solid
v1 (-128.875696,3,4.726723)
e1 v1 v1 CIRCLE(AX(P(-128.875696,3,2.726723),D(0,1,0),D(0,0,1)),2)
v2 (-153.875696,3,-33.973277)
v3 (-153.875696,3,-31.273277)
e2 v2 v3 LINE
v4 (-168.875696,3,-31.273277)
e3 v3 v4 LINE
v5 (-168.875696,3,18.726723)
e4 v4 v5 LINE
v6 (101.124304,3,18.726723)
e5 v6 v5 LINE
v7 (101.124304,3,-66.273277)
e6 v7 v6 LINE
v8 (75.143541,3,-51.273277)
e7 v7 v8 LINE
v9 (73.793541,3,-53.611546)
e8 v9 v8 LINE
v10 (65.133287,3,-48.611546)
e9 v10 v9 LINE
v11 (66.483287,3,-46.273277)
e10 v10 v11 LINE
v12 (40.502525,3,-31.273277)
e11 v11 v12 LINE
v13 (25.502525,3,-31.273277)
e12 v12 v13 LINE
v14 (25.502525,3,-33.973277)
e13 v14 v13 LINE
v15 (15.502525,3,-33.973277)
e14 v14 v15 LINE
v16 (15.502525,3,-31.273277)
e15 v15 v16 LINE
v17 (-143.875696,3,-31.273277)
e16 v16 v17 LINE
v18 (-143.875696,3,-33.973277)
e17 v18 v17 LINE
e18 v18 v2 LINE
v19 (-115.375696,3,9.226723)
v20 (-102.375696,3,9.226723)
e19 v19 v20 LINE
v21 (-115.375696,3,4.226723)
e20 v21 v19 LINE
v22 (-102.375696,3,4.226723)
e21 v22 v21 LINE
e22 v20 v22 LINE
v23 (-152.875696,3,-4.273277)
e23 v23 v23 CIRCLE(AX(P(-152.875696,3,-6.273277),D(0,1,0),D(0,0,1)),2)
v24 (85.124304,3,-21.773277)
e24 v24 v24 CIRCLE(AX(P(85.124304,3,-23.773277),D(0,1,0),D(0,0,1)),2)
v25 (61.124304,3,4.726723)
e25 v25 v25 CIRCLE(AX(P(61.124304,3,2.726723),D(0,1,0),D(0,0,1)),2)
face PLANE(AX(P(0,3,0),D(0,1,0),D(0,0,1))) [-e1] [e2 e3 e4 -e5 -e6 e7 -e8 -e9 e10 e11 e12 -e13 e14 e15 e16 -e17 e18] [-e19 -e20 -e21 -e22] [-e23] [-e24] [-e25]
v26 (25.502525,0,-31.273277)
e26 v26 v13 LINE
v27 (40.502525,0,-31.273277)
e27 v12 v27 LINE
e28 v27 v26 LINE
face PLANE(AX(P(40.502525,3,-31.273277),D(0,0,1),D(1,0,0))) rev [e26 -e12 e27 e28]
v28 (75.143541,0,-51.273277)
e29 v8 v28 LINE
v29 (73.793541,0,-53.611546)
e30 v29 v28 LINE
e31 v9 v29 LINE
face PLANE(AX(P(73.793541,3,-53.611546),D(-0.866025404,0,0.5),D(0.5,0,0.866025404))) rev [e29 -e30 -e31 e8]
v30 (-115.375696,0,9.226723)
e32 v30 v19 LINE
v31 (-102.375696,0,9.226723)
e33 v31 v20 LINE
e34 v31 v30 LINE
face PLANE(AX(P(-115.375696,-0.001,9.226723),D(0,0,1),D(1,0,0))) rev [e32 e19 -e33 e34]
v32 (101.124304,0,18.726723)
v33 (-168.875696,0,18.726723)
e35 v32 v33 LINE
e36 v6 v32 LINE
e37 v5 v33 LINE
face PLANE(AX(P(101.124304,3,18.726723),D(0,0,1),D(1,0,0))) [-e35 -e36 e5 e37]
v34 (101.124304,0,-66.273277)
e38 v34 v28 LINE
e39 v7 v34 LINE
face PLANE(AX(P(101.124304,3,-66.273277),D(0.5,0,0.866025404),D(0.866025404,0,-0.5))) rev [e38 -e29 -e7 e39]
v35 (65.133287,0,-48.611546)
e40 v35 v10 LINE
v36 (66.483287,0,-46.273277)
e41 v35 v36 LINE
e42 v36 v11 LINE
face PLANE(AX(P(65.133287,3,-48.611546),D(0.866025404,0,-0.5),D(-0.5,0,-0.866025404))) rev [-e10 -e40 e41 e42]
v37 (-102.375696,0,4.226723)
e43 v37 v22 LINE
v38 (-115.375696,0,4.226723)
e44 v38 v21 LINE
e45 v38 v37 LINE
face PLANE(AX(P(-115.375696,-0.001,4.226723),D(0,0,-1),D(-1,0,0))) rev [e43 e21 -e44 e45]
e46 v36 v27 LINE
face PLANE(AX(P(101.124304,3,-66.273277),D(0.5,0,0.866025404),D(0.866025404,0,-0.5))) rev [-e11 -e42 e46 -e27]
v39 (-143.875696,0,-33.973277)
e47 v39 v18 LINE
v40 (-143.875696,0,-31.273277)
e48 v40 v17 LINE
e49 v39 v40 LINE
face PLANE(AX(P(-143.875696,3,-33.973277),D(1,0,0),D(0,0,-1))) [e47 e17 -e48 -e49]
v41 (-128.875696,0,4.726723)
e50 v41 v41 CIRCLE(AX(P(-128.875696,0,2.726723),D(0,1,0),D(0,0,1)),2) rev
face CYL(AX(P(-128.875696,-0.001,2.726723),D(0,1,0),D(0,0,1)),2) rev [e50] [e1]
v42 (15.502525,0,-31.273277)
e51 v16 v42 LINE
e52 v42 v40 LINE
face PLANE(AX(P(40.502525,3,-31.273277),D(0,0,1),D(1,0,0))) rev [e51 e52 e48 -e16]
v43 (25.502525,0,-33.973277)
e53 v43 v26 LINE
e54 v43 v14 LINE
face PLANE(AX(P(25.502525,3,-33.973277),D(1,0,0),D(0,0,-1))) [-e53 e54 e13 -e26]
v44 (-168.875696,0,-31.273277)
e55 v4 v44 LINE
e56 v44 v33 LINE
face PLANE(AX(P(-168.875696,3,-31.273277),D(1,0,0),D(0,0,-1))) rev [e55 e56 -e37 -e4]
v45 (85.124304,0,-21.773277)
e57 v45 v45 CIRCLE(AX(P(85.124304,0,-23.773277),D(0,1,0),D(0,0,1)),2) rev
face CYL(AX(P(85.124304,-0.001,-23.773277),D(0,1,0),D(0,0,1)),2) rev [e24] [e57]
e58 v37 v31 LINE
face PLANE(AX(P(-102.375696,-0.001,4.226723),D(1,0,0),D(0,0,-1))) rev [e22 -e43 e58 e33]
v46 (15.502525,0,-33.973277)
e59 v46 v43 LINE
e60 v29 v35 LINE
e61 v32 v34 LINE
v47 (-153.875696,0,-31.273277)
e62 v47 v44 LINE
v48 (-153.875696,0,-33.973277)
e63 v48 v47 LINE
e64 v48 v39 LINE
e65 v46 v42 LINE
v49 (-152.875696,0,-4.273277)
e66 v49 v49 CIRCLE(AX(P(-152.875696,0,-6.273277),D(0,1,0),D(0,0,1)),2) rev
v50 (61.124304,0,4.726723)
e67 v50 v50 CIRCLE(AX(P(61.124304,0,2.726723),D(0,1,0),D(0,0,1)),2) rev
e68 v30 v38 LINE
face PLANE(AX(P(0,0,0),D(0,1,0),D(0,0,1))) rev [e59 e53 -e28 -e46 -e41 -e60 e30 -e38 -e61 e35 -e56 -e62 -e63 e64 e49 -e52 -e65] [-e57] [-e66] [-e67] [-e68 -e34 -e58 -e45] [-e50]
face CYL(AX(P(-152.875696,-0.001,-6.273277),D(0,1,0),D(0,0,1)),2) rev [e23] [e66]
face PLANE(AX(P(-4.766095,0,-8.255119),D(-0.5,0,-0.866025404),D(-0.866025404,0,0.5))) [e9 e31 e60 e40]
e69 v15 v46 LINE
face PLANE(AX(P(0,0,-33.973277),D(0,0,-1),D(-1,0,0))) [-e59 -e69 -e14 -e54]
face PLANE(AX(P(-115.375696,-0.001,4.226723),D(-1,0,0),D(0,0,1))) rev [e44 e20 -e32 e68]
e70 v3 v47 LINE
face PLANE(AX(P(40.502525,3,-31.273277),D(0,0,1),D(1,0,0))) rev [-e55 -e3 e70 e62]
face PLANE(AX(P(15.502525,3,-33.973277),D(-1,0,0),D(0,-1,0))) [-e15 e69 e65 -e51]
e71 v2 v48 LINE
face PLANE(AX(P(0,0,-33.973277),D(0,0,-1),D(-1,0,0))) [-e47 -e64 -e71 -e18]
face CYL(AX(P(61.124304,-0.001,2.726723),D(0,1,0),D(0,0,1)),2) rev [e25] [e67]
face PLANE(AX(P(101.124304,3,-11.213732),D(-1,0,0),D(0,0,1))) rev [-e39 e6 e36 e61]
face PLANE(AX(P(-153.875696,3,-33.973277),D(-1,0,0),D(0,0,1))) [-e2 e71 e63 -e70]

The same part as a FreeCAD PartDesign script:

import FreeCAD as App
import Part
import Sketcher
from FreeCAD import Vector
Q = App.Units.Quantity

doc = App.newDocument("Part")
params = doc.addObject("Spreadsheet::Sheet", "Params")
for row, (alias, value) in enumerate([
    ("sketch1_width", "270 mm"),
    ("sketch1_height", "50 mm"),
    ("sketch1_height2", "85 mm"),
    ("pad1_length", "3 mm"),
    ("sketch2_diameter", "4 mm"),
    ("sketch3_diameter", "4 mm"),
    ("sketch4_diameter", "4 mm"),
    ("sketch5_diameter", "4 mm"),
    ("sketch6_width", "10 mm"),
    ("sketch6_height", "3 mm"),
    ("pad2_length", "2.7 mm"),
    ("sketch7_width", "10 mm"),
    ("sketch7_height", "3 mm"),
    ("pad3_length", "2.7 mm"),
    ("sketch8_width", "13 mm"),
    ("sketch8_height", "5 mm"),
], start=1):
    params.set(f"A{row}", alias)
    params.set(f"B{row}", "=" + value)
    params.setAlias(f"B{row}", alias)

body = doc.addObject("PartDesign::Body", "Body")

# Sketch on XZ plane
sketch1 = body.newObject("Sketcher::SketchObject", "Sketch")
sketch1.AttachmentSupport = (doc.getObject("XZ_Plane"), [""])
sketch1.MapMode = "FlatFace"
sketch1.addGeometry(Part.LineSegment(Vector(101.124304, -66.273277, 0), Vector(40.502525, -31.273277, 0)), False)
sketch1.addGeometry(Part.LineSegment(Vector(40.502525, -31.273277, 0), Vector(-168.875696, -31.273277, 0)), False)
sketch1.addGeometry(Part.LineSegment(Vector(-168.875696, -31.273277, 0), Vector(-168.875696, 18.726723, 0)), False)
sketch1.addGeometry(Part.LineSegment(Vector(-168.875696, 18.726723, 0), Vector(101.124304, 18.726723, 0)), False)
sketch1.addGeometry(Part.LineSegment(Vector(101.124304, 18.726723, 0), Vector(101.124304, -66.273277, 0)), False)
sketch1.addConstraint(Sketcher.Constraint("Coincident", 0, 2, 1, 1))
sketch1.addConstraint(Sketcher.Constraint("Coincident", 1, 2, 2, 1))
sketch1.addConstraint(Sketcher.Constraint("Coincident", 2, 2, 3, 1))
sketch1.addConstraint(Sketcher.Constraint("Coincident", 3, 2, 4, 1))
sketch1.addConstraint(Sketcher.Constraint("Coincident", 4, 2, 0, 1))
sketch1.addConstraint(Sketcher.Constraint("Horizontal", 1))
sketch1.addConstraint(Sketcher.Constraint("Vertical", 2))
sketch1.addConstraint(Sketcher.Constraint("Horizontal", 3))
sketch1.addConstraint(Sketcher.Constraint("Vertical", 4))
sketch1.addConstraint(Sketcher.Constraint("DistanceX", 3, 1, 3, 2, 270.0))
sketch1.addConstraint(Sketcher.Constraint("DistanceY", 2, 1, 2, 2, 50.0))
sketch1.addConstraint(Sketcher.Constraint("DistanceY", 4, 2, 4, 1, 85.0))
sketch1.addConstraint(Sketcher.Constraint("Angle", 0, Q("150 deg")))
sketch1.addConstraint(Sketcher.Constraint("DistanceX", -1, 1, 0, 2, 40.502525))
sketch1.addConstraint(Sketcher.Constraint("DistanceY", 0, 2, -1, 1, 31.273277))
sketch1.setExpression("Constraints[9]", "Params.sketch1_width")
sketch1.setExpression("Constraints[10]", "Params.sketch1_height")
sketch1.setExpression("Constraints[11]", "Params.sketch1_height2")
pad1 = body.newObject("PartDesign::Pad", "Pad")
pad1.Profile = sketch1
pad1.setExpression("Length", "Params.pad1_length")
pad1.Reversed = True

# Sketch on XZ plane
sketch2 = body.newObject("Sketcher::SketchObject", "Sketch001")
sketch2.AttachmentSupport = (doc.getObject("XZ_Plane"), [""])
sketch2.MapMode = "FlatFace"
sketch2.AttachmentOffset = App.Placement(Vector(0, 0, -3), App.Rotation())
sketch2.addGeometry(Part.Circle(Vector(-152.875696, -6.273277, 0), Vector(0, 0, 1), 2), False)
sketch2.addConstraint(Sketcher.Constraint("Diameter", 0, 4.0))
sketch2.addConstraint(Sketcher.Constraint("DistanceX", 0, 3, -1, 1, 152.875696))
sketch2.addConstraint(Sketcher.Constraint("DistanceY", 0, 3, -1, 1, 6.273277))
sketch2.setExpression("Constraints[0]", "Params.sketch2_diameter")
pocket1 = body.newObject("PartDesign::Pocket", "Pocket")
pocket1.Profile = sketch2
pocket1.Type = "UpToFirst"
pocket1.Reversed = True

# Sketch on XZ plane
sketch3 = body.newObject("Sketcher::SketchObject", "Sketch002")
sketch3.AttachmentSupport = (doc.getObject("XZ_Plane"), [""])
sketch3.MapMode = "FlatFace"
sketch3.AttachmentOffset = App.Placement(Vector(0, 0, -3), App.Rotation())
sketch3.addGeometry(Part.Circle(Vector(85.124304, -23.773277, 0), Vector(0, 0, 1), 2), False)
sketch3.addConstraint(Sketcher.Constraint("Diameter", 0, 4.0))
sketch3.addConstraint(Sketcher.Constraint("DistanceX", -1, 1, 0, 3, 85.124304))
sketch3.addConstraint(Sketcher.Constraint("DistanceY", 0, 3, -1, 1, 23.773277))
sketch3.setExpression("Constraints[0]", "Params.sketch3_diameter")
pocket2 = body.newObject("PartDesign::Pocket", "Pocket001")
pocket2.Profile = sketch3
pocket2.Type = "UpToFirst"
pocket2.Reversed = True

# Sketch on XZ plane
sketch4 = body.newObject("Sketcher::SketchObject", "Sketch003")
sketch4.AttachmentSupport = (doc.getObject("XZ_Plane"), [""])
sketch4.MapMode = "FlatFace"
sketch4.AttachmentOffset = App.Placement(Vector(0, 0, -3), App.Rotation())
sketch4.addGeometry(Part.Circle(Vector(-128.875696, 2.726723, 0), Vector(0, 0, 1), 2), False)
sketch4.addConstraint(Sketcher.Constraint("Diameter", 0, 4.0))
sketch4.addConstraint(Sketcher.Constraint("DistanceX", 0, 3, -1, 1, 128.875696))
sketch4.addConstraint(Sketcher.Constraint("DistanceY", -1, 1, 0, 3, 2.726723))
sketch4.setExpression("Constraints[0]", "Params.sketch4_diameter")
pocket3 = body.newObject("PartDesign::Pocket", "Pocket002")
pocket3.Profile = sketch4
pocket3.Type = "UpToFirst"
pocket3.Reversed = True

# Sketch on XZ plane
sketch5 = body.newObject("Sketcher::SketchObject", "Sketch004")
sketch5.AttachmentSupport = (doc.getObject("XZ_Plane"), [""])
sketch5.MapMode = "FlatFace"
sketch5.AttachmentOffset = App.Placement(Vector(0, 0, -3), App.Rotation())
sketch5.addGeometry(Part.Circle(Vector(61.124304, 2.726723, 0), Vector(0, 0, 1), 2), False)
sketch5.addConstraint(Sketcher.Constraint("Diameter", 0, 4.0))
sketch5.addConstraint(Sketcher.Constraint("DistanceX", -1, 1, 0, 3, 61.124304))
sketch5.addConstraint(Sketcher.Constraint("DistanceY", -1, 1, 0, 3, 2.726723))
sketch5.setExpression("Constraints[0]", "Params.sketch5_diameter")
pocket4 = body.newObject("PartDesign::Pocket", "Pocket003")
pocket4.Profile = sketch5
pocket4.Type = "UpToFirst"
pocket4.Reversed = True

# Sketch on XY plane
sketch6 = body.newObject("Sketcher::SketchObject", "Sketch005")
sketch6.AttachmentSupport = (doc.getObject("XY_Plane"), [""])
sketch6.MapMode = "FlatFace"
sketch6.AttachmentOffset = App.Placement(Vector(0, 0, -31.273277), App.Rotation())
sketch6.addGeometry(Part.LineSegment(Vector(-153.875696, 3, 0), Vector(-153.875696, 0, 0)), False)
sketch6.addGeometry(Part.LineSegment(Vector(-153.875696, 0, 0), Vector(-143.875696, 0, 0)), False)
sketch6.addGeometry(Part.LineSegment(Vector(-143.875696, 0, 0), Vector(-143.875696, 3, 0)), False)
sketch6.addGeometry(Part.LineSegment(Vector(-143.875696, 3, 0), Vector(-153.875696, 3, 0)), False)
sketch6.addGeometry(Part.LineSegment(Vector(15.502525, 3, 0), Vector(15.502525, 0, 0)), False)
sketch6.addGeometry(Part.LineSegment(Vector(15.502525, 0, 0), Vector(25.502525, 0, 0)), False)
sketch6.addGeometry(Part.LineSegment(Vector(25.502525, 0, 0), Vector(25.502525, 3, 0)), False)
sketch6.addGeometry(Part.LineSegment(Vector(25.502525, 3, 0), Vector(15.502525, 3, 0)), False)
sketch6.addConstraint(Sketcher.Constraint("Coincident", 0, 2, 1, 1))
sketch6.addConstraint(Sketcher.Constraint("Coincident", 1, 2, 2, 1))
sketch6.addConstraint(Sketcher.Constraint("Coincident", 2, 2, 3, 1))
sketch6.addConstraint(Sketcher.Constraint("Coincident", 3, 2, 0, 1))
sketch6.addConstraint(Sketcher.Constraint("Coincident", 4, 2, 5, 1))
sketch6.addConstraint(Sketcher.Constraint("Coincident", 5, 2, 6, 1))
sketch6.addConstraint(Sketcher.Constraint("Coincident", 6, 2, 7, 1))
sketch6.addConstraint(Sketcher.Constraint("Coincident", 7, 2, 4, 1))
sketch6.addConstraint(Sketcher.Constraint("Vertical", 0))
sketch6.addConstraint(Sketcher.Constraint("Horizontal", 1))
sketch6.addConstraint(Sketcher.Constraint("Vertical", 2))
sketch6.addConstraint(Sketcher.Constraint("Horizontal", 3))
sketch6.addConstraint(Sketcher.Constraint("Vertical", 4))
sketch6.addConstraint(Sketcher.Constraint("Horizontal", 5))
sketch6.addConstraint(Sketcher.Constraint("Vertical", 6))
sketch6.addConstraint(Sketcher.Constraint("Horizontal", 7))
sketch6.addConstraint(Sketcher.Constraint("PointOnObject", 0, 2, -1))
sketch6.addConstraint(Sketcher.Constraint("PointOnObject", 4, 2, -1))
sketch6.addConstraint(Sketcher.Constraint("Horizontal", 3, 2, 6, 2))
sketch6.addConstraint(Sketcher.Constraint("Equal", 3, 5))
sketch6.addConstraint(Sketcher.Constraint("DistanceX", 1, 1, 1, 2, 10.0))
sketch6.addConstraint(Sketcher.Constraint("DistanceY", 0, 2, 0, 1, 3.0))
sketch6.addConstraint(Sketcher.Constraint("DistanceX", 1, 2, 4, 2, 159.378222))
sketch6.addConstraint(Sketcher.Constraint("DistanceX", 0, 2, -1, 1, 153.875696))
sketch6.setExpression("Constraints[20]", "Params.sketch6_width")
sketch6.setExpression("Constraints[21]", "Params.sketch6_height")
pad2 = body.newObject("PartDesign::Pad", "Pad001")
pad2.Profile = sketch6
pad2.setExpression("Length", "Params.pad2_length")
pad2.Reversed = True

# Sketch on an angled plane
sketch7 = body.newObject("Sketcher::SketchObject", "Sketch006")
sketch7.Placement = App.Placement(Vector(-3.416095, 0, -5.91685), App.Rotation(Vector(-0.866025404, 0, 0.5), Vector(0, 1, 0), Vector(-0.5, 0, -0.866025404), "ZXY"))
sketch7.addGeometry(Part.LineSegment(Vector(-90.712854, 3, 0), Vector(-90.712854, 0, 0)), False)
sketch7.addGeometry(Part.LineSegment(Vector(-90.712854, 0, 0), Vector(-80.712854, 0, 0)), False)
sketch7.addGeometry(Part.LineSegment(Vector(-80.712854, 0, 0), Vector(-80.712854, 3, 0)), False)
sketch7.addGeometry(Part.LineSegment(Vector(-80.712854, 3, 0), Vector(-90.712854, 3, 0)), False)
sketch7.addConstraint(Sketcher.Constraint("Coincident", 0, 2, 1, 1))
sketch7.addConstraint(Sketcher.Constraint("Coincident", 1, 2, 2, 1))
sketch7.addConstraint(Sketcher.Constraint("Coincident", 2, 2, 3, 1))
sketch7.addConstraint(Sketcher.Constraint("Coincident", 3, 2, 0, 1))
sketch7.addConstraint(Sketcher.Constraint("Vertical", 0))
sketch7.addConstraint(Sketcher.Constraint("Horizontal", 1))
sketch7.addConstraint(Sketcher.Constraint("Vertical", 2))
sketch7.addConstraint(Sketcher.Constraint("Horizontal", 3))
sketch7.addConstraint(Sketcher.Constraint("PointOnObject", 0, 2, -1))
sketch7.addConstraint(Sketcher.Constraint("DistanceX", 1, 1, 1, 2, 10.0))
sketch7.addConstraint(Sketcher.Constraint("DistanceY", 0, 2, 0, 1, 3.0))
sketch7.addConstraint(Sketcher.Constraint("DistanceX", 0, 2, -1, 1, 90.712854))
sketch7.setExpression("Constraints[9]", "Params.sketch7_width")
sketch7.setExpression("Constraints[10]", "Params.sketch7_height")
pad3 = body.newObject("PartDesign::Pad", "Pad002")
pad3.Profile = sketch7
pad3.setExpression("Length", "Params.pad3_length")

# Sketch on XZ plane
sketch8 = body.newObject("Sketcher::SketchObject", "Sketch007")
sketch8.AttachmentSupport = (doc.getObject("XZ_Plane"), [""])
sketch8.MapMode = "FlatFace"
sketch8.AttachmentOffset = App.Placement(Vector(0, 0, -3), App.Rotation())
sketch8.addGeometry(Part.LineSegment(Vector(-115.375696, 4.226723, 0), Vector(-115.375696, 9.226723, 0)), False)
sketch8.addGeometry(Part.LineSegment(Vector(-115.375696, 9.226723, 0), Vector(-102.375696, 9.226723, 0)), False)
sketch8.addGeometry(Part.LineSegment(Vector(-102.375696, 9.226723, 0), Vector(-102.375696, 4.226723, 0)), False)
sketch8.addGeometry(Part.LineSegment(Vector(-102.375696, 4.226723, 0), Vector(-115.375696, 4.226723, 0)), False)
sketch8.addConstraint(Sketcher.Constraint("Coincident", 0, 2, 1, 1))
sketch8.addConstraint(Sketcher.Constraint("Coincident", 1, 2, 2, 1))
sketch8.addConstraint(Sketcher.Constraint("Coincident", 2, 2, 3, 1))
sketch8.addConstraint(Sketcher.Constraint("Coincident", 3, 2, 0, 1))
sketch8.addConstraint(Sketcher.Constraint("Vertical", 0))
sketch8.addConstraint(Sketcher.Constraint("Horizontal", 1))
sketch8.addConstraint(Sketcher.Constraint("Vertical", 2))
sketch8.addConstraint(Sketcher.Constraint("Horizontal", 3))
sketch8.addConstraint(Sketcher.Constraint("DistanceX", 1, 1, 1, 2, 13.0))
sketch8.addConstraint(Sketcher.Constraint("DistanceY", 0, 1, 0, 2, 5.0))
sketch8.addConstraint(Sketcher.Constraint("DistanceX", 0, 2, -1, 1, 115.375696))
sketch8.addConstraint(Sketcher.Constraint("DistanceY", -1, 1, 0, 2, 9.226723))
sketch8.setExpression("Constraints[8]", "Params.sketch8_width")
sketch8.setExpression("Constraints[9]", "Params.sketch8_height")
pocket5 = body.newObject("PartDesign::Pocket", "Pocket004")
pocket5.Profile = sketch8
pocket5.Type = "UpToFirst"
pocket5.Reversed = True

doc.recompute()
